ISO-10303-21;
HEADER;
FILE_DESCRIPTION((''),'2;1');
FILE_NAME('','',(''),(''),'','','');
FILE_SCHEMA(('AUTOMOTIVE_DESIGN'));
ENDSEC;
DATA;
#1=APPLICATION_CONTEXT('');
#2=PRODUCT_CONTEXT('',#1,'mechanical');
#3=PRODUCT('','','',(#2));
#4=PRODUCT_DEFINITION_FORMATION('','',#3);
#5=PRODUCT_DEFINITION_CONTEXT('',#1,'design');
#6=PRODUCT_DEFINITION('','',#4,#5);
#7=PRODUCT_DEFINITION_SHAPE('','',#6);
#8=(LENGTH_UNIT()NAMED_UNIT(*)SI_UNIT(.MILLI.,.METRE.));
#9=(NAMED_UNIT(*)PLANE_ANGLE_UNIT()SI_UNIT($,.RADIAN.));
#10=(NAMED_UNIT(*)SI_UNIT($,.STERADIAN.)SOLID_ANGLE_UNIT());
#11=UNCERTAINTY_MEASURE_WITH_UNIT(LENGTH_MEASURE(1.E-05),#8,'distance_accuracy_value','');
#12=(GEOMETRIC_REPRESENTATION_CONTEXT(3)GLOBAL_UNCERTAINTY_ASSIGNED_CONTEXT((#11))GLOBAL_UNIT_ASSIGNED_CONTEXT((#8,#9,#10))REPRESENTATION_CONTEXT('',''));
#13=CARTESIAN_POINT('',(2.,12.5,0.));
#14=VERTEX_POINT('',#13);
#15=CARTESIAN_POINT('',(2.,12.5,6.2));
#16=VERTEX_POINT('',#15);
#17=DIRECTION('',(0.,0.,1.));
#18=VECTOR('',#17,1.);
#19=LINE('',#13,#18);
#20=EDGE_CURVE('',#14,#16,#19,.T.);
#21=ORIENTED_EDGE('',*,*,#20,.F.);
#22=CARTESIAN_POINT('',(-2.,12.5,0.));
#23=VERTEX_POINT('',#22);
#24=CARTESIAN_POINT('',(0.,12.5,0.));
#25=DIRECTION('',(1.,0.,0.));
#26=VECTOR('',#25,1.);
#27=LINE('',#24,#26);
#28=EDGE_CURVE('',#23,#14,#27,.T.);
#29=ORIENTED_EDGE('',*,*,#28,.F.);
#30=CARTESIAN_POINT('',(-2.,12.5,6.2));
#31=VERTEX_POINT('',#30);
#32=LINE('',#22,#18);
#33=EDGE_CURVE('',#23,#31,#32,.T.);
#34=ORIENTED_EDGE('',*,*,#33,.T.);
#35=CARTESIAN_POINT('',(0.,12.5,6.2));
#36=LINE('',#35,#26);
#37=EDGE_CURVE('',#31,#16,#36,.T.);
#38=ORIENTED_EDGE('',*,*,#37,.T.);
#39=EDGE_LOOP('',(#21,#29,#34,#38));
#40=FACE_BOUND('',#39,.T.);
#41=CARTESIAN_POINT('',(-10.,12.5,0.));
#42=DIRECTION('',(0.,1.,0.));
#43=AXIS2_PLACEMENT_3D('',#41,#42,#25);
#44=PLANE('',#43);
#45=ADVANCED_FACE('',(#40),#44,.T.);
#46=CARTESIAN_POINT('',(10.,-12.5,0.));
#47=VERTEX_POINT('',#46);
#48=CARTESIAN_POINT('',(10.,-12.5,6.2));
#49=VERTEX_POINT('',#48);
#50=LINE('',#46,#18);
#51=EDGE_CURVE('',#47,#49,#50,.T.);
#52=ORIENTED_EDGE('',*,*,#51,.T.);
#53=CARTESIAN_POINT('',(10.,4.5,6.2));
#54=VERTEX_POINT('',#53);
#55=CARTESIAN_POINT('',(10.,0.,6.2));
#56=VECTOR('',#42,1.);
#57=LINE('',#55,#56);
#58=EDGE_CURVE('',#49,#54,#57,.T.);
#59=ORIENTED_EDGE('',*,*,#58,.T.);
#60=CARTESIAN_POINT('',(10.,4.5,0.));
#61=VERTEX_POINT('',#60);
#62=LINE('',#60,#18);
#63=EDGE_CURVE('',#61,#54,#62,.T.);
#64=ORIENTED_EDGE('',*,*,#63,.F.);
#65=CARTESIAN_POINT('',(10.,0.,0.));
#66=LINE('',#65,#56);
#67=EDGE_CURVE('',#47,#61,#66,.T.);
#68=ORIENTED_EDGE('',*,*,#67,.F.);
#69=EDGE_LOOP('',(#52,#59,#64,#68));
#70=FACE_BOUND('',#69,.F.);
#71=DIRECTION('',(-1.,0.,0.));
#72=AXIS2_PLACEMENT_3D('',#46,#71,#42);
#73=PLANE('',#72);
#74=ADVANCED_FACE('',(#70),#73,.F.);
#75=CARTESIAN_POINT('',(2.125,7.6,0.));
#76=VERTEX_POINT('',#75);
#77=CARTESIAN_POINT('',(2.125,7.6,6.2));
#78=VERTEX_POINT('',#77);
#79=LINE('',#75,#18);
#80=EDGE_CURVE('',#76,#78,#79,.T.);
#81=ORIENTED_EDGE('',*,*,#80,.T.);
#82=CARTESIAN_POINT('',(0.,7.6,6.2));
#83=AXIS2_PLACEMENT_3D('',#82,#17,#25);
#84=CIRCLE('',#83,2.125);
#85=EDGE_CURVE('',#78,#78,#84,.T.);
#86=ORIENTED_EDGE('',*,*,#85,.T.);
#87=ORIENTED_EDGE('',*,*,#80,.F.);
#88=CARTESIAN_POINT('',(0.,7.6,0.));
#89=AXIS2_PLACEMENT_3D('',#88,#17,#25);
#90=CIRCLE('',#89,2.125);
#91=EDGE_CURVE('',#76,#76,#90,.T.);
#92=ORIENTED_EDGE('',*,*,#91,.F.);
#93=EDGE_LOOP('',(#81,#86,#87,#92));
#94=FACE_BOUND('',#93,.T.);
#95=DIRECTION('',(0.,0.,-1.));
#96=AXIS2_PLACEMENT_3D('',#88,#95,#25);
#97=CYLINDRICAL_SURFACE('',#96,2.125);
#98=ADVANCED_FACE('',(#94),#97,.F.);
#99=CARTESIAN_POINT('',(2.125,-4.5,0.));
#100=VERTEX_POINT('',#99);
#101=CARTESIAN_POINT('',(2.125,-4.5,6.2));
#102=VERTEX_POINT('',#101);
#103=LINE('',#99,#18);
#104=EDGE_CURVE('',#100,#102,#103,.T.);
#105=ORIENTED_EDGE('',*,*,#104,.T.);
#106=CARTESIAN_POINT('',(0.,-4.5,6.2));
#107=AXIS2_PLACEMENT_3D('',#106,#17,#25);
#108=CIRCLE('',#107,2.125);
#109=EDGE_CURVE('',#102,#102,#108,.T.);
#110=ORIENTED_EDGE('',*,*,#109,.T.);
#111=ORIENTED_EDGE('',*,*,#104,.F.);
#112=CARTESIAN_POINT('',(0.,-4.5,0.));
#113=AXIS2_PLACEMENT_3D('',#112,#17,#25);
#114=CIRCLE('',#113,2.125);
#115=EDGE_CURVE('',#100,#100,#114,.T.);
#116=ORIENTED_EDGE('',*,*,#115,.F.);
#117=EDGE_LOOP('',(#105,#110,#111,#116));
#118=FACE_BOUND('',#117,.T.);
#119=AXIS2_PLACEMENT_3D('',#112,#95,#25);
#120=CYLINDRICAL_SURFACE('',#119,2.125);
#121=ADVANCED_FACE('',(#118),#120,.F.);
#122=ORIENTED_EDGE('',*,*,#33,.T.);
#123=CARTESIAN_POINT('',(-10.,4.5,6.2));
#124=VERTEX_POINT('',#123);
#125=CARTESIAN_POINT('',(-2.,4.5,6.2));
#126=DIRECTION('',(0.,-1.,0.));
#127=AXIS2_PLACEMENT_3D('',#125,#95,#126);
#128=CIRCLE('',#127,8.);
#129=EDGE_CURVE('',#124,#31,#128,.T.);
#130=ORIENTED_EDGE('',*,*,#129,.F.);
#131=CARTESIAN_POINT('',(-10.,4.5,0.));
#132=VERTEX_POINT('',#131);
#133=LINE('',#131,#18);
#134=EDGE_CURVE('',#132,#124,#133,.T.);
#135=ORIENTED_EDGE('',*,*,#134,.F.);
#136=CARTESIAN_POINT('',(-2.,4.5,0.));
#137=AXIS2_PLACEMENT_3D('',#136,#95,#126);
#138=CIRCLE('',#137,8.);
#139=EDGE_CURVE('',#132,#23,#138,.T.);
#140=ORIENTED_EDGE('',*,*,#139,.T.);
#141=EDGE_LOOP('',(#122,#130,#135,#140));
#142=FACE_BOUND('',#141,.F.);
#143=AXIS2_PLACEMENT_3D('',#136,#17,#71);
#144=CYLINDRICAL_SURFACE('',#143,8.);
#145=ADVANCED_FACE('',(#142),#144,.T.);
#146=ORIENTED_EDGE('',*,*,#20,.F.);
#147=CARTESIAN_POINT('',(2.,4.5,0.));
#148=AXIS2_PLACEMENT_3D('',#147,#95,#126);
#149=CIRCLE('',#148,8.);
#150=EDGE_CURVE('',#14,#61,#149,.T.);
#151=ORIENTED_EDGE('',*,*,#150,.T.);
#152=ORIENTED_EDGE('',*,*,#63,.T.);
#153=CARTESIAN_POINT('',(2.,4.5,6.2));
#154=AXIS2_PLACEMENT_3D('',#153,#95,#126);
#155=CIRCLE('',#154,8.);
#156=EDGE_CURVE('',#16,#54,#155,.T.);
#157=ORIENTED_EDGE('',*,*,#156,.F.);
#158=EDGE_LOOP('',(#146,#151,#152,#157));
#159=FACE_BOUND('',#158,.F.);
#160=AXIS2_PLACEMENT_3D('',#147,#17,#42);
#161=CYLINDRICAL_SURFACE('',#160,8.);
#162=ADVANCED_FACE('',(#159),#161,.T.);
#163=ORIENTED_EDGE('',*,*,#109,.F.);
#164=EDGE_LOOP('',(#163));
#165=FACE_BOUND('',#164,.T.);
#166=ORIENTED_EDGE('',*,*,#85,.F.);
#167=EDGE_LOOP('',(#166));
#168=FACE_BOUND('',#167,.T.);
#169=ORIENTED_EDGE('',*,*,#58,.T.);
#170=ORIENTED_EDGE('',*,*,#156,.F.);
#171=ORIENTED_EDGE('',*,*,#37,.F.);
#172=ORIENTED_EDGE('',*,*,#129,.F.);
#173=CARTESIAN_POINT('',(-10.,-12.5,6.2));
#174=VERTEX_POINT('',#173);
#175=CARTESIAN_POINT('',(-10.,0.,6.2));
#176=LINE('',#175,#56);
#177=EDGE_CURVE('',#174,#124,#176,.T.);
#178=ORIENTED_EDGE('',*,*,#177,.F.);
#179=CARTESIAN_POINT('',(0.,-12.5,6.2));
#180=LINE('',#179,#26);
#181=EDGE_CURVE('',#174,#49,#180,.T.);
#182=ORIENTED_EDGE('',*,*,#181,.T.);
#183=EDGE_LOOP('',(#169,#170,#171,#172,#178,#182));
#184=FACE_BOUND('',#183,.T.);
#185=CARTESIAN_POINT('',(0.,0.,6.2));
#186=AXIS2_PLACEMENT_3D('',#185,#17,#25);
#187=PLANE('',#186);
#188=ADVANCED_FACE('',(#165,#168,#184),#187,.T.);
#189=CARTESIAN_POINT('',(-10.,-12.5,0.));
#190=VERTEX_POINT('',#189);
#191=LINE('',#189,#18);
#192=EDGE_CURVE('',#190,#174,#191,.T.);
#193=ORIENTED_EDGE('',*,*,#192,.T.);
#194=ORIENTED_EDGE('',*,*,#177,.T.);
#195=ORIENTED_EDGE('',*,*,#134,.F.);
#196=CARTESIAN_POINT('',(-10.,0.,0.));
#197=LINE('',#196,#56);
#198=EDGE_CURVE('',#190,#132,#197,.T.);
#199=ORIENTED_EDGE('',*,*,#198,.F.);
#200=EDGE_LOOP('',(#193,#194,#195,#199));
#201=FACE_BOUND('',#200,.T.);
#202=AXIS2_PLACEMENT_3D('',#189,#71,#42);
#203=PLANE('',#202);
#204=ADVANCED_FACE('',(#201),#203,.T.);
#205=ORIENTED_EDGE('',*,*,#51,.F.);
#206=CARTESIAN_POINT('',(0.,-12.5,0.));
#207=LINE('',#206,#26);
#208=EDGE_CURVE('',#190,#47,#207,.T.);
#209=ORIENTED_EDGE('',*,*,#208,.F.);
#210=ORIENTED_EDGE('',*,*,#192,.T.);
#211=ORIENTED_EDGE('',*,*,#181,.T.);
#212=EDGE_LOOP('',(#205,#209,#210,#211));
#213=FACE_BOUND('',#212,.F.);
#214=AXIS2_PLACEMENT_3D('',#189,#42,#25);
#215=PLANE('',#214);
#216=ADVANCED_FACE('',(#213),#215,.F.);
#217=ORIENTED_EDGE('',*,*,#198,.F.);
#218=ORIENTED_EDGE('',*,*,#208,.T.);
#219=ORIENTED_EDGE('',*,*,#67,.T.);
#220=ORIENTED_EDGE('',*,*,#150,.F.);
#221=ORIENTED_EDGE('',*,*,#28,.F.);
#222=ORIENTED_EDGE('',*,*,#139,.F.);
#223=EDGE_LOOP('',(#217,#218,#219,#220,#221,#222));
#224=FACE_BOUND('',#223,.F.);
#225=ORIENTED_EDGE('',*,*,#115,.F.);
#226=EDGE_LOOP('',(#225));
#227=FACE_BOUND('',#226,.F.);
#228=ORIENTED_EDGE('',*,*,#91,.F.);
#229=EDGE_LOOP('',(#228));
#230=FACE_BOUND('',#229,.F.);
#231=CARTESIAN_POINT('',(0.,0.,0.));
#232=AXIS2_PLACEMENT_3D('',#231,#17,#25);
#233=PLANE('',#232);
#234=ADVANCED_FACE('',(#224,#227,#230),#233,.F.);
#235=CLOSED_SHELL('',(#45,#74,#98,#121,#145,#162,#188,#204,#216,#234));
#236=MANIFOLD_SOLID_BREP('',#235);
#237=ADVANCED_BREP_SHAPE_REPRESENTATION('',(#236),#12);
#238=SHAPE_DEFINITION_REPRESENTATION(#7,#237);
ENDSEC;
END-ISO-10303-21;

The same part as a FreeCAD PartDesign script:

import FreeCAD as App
import Part
import Sketcher
from FreeCAD import Vector


def edges_at(feature, points):
    """Names of the edges that pass closest to the given points."""
    edges = feature.Shape.Edges
    near = lambda p: min(range(len(edges)), key=lambda i: edges[i].distToShape(Part.Vertex(*p))[0])
    return sorted({f"Edge{near(p) + 1}" for p in points})


def add_polygon(sketch, points):
    """Adds a closed chain of lines whose ends are joined by coincident constraints."""
    first, n = sketch.GeometryCount, len(points)
    for a, b in zip(points, points[1:] + points[:1]):
        sketch.addGeometry(Part.LineSegment(App.Vector(*a, 0), App.Vector(*b, 0)), False)
    for i in range(n):
        sketch.addConstraint(Sketcher.Constraint("Coincident", first + i, 2, first + (i + 1) % n, 1))

doc = App.newDocument("Part")
body = doc.addObject("PartDesign::Body", "Body")

# Sketch on XY plane
sketch1 = body.newObject("Sketcher::SketchObject", "Sketch")
sketch1.AttachmentSupport = (doc.getObject("XY_Plane"), [""])
sketch1.MapMode = "FlatFace"
add_polygon(sketch1, [(-10, 12.5), (-10, -12.5), (10, -12.5), (10, 12.5)])  # lines 0-3
sketch1.addGeometry(Part.Circle(Vector(0, -4.5, 0), Vector(0, 0, 1), 2.1), False)  # 4
sketch1.addGeometry(Part.Circle(Vector(0, 7.6, 0), Vector(0, 0, 1), 2.1), False)  # 5
sketch1.addConstraint([
    Sketcher.Constraint("Vertical", 0),
    Sketcher.Constraint("Horizontal", 1),
    Sketcher.Constraint("Vertical", 2),
    Sketcher.Constraint("Horizontal", 3),
    Sketcher.Constraint("Equal", 4, 5),
    Sketcher.Constraint("Symmetric", 0, 2, 2, 2, -1, 1),
    Sketcher.Constraint("PointOnObject", 4, 3, -2),
    Sketcher.Constraint("PointOnObject", 5, 3, -2),
    Sketcher.Constraint("Diameter", 4, 4.25),
    Sketcher.Constraint("DistanceX", 1, 1, 1, 2, 20.0),
    Sketcher.Constraint("DistanceY", 0, 2, 0, 1, 25.0),
    Sketcher.Constraint("DistanceY", 0, 2, 4, 3, 8.0),
    Sketcher.Constraint("DistanceY", -1, 1, 5, 3, 7.6),
])
pad1 = body.newObject("PartDesign::Pad", "Pad")
pad1.Profile = sketch1
pad1.Length = 6.2
doc.recompute()

fillet = body.newObject("PartDesign::Fillet", "Fillet")
fillet.Base = (pad1, edges_at(pad1, [(-10, 12.5, 3.1), (10, 12.5, 3.1)]))
fillet.Radius = 8

doc.recompute()
